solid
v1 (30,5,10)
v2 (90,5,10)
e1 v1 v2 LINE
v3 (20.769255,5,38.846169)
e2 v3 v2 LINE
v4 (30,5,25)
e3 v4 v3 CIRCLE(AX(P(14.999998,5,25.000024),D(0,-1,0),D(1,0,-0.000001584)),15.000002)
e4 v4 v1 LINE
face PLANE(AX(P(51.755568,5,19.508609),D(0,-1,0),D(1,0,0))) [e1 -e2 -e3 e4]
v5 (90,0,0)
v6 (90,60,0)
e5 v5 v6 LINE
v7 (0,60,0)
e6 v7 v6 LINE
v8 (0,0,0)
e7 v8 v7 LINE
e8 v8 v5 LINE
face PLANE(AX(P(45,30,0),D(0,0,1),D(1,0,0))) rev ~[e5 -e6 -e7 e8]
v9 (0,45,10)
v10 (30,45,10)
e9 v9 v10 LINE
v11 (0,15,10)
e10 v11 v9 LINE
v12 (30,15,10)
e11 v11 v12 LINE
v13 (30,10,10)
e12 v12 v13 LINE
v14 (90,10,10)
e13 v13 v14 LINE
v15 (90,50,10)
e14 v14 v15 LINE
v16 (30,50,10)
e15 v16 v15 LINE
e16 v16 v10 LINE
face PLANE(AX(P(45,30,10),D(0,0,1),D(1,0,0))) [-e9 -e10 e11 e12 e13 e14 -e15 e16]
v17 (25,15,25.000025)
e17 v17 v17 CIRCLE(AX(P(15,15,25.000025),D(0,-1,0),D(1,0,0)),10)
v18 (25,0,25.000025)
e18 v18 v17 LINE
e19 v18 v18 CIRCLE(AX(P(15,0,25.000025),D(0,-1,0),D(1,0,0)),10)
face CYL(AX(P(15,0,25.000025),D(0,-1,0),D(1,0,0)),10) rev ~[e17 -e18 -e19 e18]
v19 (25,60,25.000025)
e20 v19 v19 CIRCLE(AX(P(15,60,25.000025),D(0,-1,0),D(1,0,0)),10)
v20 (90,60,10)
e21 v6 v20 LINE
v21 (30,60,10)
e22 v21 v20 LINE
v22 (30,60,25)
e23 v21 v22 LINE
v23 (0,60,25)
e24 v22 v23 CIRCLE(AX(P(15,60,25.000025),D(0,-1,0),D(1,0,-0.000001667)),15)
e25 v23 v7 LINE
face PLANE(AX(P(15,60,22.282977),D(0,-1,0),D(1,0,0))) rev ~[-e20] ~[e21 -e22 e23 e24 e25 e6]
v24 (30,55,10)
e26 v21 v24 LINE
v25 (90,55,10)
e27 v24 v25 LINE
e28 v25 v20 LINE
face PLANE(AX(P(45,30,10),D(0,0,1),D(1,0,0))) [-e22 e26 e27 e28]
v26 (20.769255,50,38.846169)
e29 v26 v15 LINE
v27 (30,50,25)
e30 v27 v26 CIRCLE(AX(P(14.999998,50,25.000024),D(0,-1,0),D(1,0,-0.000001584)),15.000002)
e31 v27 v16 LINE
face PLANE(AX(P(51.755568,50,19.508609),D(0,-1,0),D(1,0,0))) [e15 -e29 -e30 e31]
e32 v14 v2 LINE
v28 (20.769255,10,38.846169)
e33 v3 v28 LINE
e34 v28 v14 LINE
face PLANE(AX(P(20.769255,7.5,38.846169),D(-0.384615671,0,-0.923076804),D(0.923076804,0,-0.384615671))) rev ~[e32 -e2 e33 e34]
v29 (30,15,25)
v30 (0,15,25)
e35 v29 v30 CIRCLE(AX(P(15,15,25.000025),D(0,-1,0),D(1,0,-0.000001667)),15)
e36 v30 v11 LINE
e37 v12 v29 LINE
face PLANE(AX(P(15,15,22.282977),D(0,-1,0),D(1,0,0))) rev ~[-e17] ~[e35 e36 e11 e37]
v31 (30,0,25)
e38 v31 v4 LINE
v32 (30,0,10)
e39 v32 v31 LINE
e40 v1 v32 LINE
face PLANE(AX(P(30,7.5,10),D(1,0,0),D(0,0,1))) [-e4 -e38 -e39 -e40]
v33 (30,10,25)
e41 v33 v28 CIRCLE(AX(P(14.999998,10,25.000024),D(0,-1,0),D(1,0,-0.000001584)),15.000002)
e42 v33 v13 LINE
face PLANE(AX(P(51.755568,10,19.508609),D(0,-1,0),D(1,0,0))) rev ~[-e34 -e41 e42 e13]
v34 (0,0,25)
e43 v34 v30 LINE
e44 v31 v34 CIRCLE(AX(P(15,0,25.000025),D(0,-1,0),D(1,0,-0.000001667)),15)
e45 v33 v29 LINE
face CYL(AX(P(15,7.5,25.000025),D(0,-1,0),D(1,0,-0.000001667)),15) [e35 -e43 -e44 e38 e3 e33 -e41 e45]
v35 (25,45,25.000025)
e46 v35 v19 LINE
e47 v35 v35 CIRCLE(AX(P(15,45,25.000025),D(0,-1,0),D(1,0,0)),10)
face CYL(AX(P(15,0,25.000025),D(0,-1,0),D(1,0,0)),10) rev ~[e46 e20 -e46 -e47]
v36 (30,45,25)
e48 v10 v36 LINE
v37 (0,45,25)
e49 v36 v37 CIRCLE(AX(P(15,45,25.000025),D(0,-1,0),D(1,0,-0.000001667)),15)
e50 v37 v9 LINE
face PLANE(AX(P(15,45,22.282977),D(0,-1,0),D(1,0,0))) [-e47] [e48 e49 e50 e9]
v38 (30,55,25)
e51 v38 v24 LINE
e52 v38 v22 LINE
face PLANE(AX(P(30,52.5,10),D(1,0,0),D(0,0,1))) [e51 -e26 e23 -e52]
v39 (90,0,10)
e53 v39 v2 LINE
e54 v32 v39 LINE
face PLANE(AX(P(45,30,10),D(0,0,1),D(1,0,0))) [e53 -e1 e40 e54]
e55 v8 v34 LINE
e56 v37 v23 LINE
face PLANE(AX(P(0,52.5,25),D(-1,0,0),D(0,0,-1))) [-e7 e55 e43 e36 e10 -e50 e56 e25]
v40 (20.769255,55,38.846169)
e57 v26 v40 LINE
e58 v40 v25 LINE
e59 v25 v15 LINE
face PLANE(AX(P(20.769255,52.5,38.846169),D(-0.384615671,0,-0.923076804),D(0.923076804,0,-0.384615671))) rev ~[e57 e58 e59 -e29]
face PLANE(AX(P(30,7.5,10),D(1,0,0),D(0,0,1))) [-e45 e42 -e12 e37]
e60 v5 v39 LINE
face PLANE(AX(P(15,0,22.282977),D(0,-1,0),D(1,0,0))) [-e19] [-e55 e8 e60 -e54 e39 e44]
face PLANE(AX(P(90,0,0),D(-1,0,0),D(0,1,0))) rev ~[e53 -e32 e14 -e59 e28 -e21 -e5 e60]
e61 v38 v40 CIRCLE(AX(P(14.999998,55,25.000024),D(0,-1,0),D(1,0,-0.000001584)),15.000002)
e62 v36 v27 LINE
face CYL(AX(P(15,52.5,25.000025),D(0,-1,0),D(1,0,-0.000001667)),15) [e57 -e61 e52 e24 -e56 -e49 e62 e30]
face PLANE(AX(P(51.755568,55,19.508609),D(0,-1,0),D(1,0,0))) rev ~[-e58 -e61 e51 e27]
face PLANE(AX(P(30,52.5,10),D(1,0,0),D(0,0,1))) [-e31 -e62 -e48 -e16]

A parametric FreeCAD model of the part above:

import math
import FreeCAD as App
import Part
import Sketcher


def add_polygon(sketch, points):
    """Adds a closed chain of lines whose ends are joined by coincident constraints."""
    first, n = sketch.GeometryCount, len(points)
    for a, b in zip(points, points[1:] + points[:1]):
        sketch.addGeometry(Part.LineSegment(App.Vector(*a, 0), App.Vector(*b, 0)), False)
    for i in range(n):
        sketch.addConstraint(Sketcher.Constraint("Coincident", first + i, 2, first + (i + 1) % n, 1))

doc = App.newDocument("Part")
body = doc.addObject("PartDesign::Body", "Body")

# Sketch on XY plane
sketch1 = body.newObject("Sketcher::SketchObject", "Sketch")
sketch1.AttachmentSupport = (doc.getObject("XY_Plane"), [""])
sketch1.MapMode = "FlatFace"
add_polygon(sketch1, [(0, 60), (0, 0), (90, 0), (90, 60)])  # lines 0-3
sketch1.addConstraint(Sketcher.Constraint("Vertical", 0))
sketch1.addConstraint(Sketcher.Constraint("Horizontal", 1))
sketch1.addConstraint(Sketcher.Constraint("Vertical", 2))
sketch1.addConstraint(Sketcher.Constraint("Horizontal", 3))
sketch1.addConstraint(Sketcher.Constraint("Coincident", 0, 2, -1, 1))
sketch1.addConstraint(Sketcher.Constraint("DistanceX", 1, 1, 1, 2, 90.0))
sketch1.addConstraint(Sketcher.Constraint("DistanceY", 0, 2, 0, 1, 60.0))
pad1 = body.newObject("PartDesign::Pad", "Pad")
pad1.Profile = sketch1
pad1.Length = 10

# Sketch on XZ plane
sketch2 = body.newObject("Sketcher::SketchObject", "Sketch001")
sketch2.AttachmentSupport = (doc.getObject("XZ_Plane"), [""])
sketch2.MapMode = "FlatFace"
sketch2.AttachmentOffset = App.Placement(App.Vector(0, 0, -7.5), App.Rotation())
sketch2.addGeometry(Part.LineSegment(App.Vector(0, 25, 0), App.Vector(0, 10, 0)), False)
sketch2.addGeometry(Part.LineSegment(App.Vector(0, 10, 0), App.Vector(30, 10, 0)), False)
sketch2.addGeometry(Part.LineSegment(App.Vector(30, 10, 0), App.Vector(30, 25, 0)), False)
sketch2.addGeometry(Part.ArcOfCircle(Part.Circle(App.Vector(15, 25.000025, 0), App.Vector(0, 0, 1), 15), math.radians(-0.000095), math.radians(180.000095)), False)
sketch2.addConstraint(Sketcher.Constraint("Coincident", 0, 2, 1, 1))
sketch2.addConstraint(Sketcher.Constraint("Coincident", 1, 2, 2, 1))
sketch2.addConstraint(Sketcher.Constraint("Coincident", 2, 2, 3, 1))
sketch2.addConstraint(Sketcher.Constraint("Coincident", 3, 2, 0, 1))
sketch2.addConstraint(Sketcher.Constraint("Vertical", 0))
sketch2.addConstraint(Sketcher.Constraint("Horizontal", 1))
sketch2.addConstraint(Sketcher.Constraint("Vertical", 2))
sketch2.addConstraint(Sketcher.Constraint("PointOnObject", 0, 2, -2))
sketch2.addConstraint(Sketcher.Constraint("Radius", 3, 15.0))
sketch2.addConstraint(Sketcher.Constraint("DistanceY", 0, 2, 0, 1, 15.0))
sketch2.addConstraint(Sketcher.Constraint("DistanceY", 2, 1, 2, 2, 15.0))
sketch2.addConstraint(Sketcher.Constraint("DistanceY", -1, 1, 0, 2, 10.0))
sketch2.addConstraint(Sketcher.Constraint("DistanceY", -1, 1, 3, 3, 25.000025))
pad2 = body.newObject("PartDesign::Pad", "Pad001")
pad2.Profile = sketch2
pad2.Length = 15
pad2.Midplane = True

# Sketch on XZ plane
sketch3 = body.newObject("Sketcher::SketchObject", "Sketch002")
sketch3.AttachmentSupport = (doc.getObject("XZ_Plane"), [""])
sketch3.MapMode = "FlatFace"
sketch3.AttachmentOffset = App.Placement(App.Vector(0, 0, -7.5), App.Rotation())
sketch3.addGeometry(Part.LineSegment(App.Vector(30, 25, 0), App.Vector(30, 10, 0)), False)
sketch3.addGeometry(Part.LineSegment(App.Vector(30, 10, 0), App.Vector(90, 10, 0)), False)
sketch3.addGeometry(Part.LineSegment(App.Vector(90, 10, 0), App.Vector(20.769255, 38.846169, 0)), False)
sketch3.addGeometry(Part.ArcOfCircle(Part.Circle(App.Vector(14.999998, 25.000024, 0), App.Vector(0, 0, 1), 15.000002), math.radians(-0.000091), math.radians(67.380029)), False)
sketch3.addConstraint(Sketcher.Constraint("Coincident", 0, 2, 1, 1))
sketch3.addConstraint(Sketcher.Constraint("Coincident", 1, 2, 2, 1))
sketch3.addConstraint(Sketcher.Constraint("Coincident", 2, 2, 3, 2))
sketch3.addConstraint(Sketcher.Constraint("Coincident", 3, 1, 0, 1))
sketch3.addConstraint(Sketcher.Constraint("Vertical", 0))
sketch3.addConstraint(Sketcher.Constraint("Horizontal", 1))
sketch3.addConstraint(Sketcher.Constraint("DistanceX", 1, 1, 1, 2, 60.0))
sketch3.addConstraint(Sketcher.Constraint("DistanceY", 0, 2, 0, 1, 15.0))
sketch3.addConstraint(Sketcher.Constraint("DistanceX", -1, 1, 0, 2, 30.0))
sketch3.addConstraint(Sketcher.Constraint("DistanceY", -1, 1, 0, 2, 10.0))
sketch3.addConstraint(Sketcher.Constraint("Radius", 3, 15.000002))
sketch3.addConstraint(Sketcher.Constraint("DistanceY", -1, 1, 2, 2, 38.846169))
sketch3.addConstraint(Sketcher.Constraint("Distance", 2, 74.999983))
pad3 = body.newObject("PartDesign::Pad", "Pad002")
pad3.Profile = sketch3
pad3.Length = 5
pad3.Midplane = True
doc.recompute()

linearpattern = body.newObject("PartDesign::LinearPattern", "LinearPattern")
linearpattern.Originals = [pad2]
linearpattern.Direction = (doc.getObject("Y_Axis"), [""])
linearpattern.Mode = "offset"
linearpattern.Offset = 45
linearpattern.Occurrences = 2
body.Tip = linearpattern
doc.recompute()

linearpattern2 = body.newObject("PartDesign::LinearPattern", "LinearPattern001")
linearpattern2.Originals = [pad3]
linearpattern2.Direction = (doc.getObject("Y_Axis"), [""])
linearpattern2.Mode = "offset"
linearpattern2.Offset = 45
linearpattern2.Occurrences = 2
body.Tip = linearpattern2

# Sketch on XZ plane
sketch4 = body.newObject("Sketcher::SketchObject", "Sketch003")
sketch4.AttachmentSupport = (doc.getObject("XZ_Plane"), [""])
sketch4.MapMode = "FlatFace"
sketch4.addGeometry(Part.Circle(App.Vector(15, 25.000025, 0), App.Vector(0, 0, 1), 10), False)
sketch4.addConstraint(Sketcher.Constraint("Diameter", 0, 20.0))
sketch4.addConstraint(Sketcher.Constraint("DistanceX", -1, 1, 0, 3, 15.0))
sketch4.addConstraint(Sketcher.Constraint("DistanceY", -1, 1, 0, 3, 25.000025))
pocket1 = body.newObject("PartDesign::Pocket", "Pocket")
pocket1.Profile = sketch4
pocket1.Length = 60

doc.recompute()
